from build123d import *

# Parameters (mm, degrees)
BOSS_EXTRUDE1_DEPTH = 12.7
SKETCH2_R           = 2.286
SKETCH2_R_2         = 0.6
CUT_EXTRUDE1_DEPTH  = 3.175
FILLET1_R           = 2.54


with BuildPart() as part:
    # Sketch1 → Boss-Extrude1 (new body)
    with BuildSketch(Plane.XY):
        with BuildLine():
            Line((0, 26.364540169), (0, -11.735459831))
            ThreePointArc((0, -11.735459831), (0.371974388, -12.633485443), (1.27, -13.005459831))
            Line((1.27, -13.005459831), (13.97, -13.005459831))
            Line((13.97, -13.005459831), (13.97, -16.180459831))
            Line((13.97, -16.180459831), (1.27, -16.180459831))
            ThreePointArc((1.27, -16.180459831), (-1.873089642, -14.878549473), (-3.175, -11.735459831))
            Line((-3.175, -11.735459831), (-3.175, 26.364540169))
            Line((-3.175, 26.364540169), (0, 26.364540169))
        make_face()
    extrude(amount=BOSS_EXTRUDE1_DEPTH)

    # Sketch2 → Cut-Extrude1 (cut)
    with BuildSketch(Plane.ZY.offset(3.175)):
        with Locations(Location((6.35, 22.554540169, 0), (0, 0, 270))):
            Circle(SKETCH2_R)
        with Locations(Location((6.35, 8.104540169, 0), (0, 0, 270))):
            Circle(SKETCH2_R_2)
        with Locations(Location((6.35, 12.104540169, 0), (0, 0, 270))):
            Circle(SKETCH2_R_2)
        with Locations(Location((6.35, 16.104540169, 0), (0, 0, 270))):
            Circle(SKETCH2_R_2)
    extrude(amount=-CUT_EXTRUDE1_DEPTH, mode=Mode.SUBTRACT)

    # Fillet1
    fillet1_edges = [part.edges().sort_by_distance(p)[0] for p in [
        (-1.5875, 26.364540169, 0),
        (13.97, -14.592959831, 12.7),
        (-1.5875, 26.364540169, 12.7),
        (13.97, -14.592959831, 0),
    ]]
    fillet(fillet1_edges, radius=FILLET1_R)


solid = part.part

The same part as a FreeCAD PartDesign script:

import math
import FreeCAD as App
import Part
import Sketcher
from FreeCAD import Vector
Q = App.Units.Quantity


def edges_at(feature, points):
    """Names of the edges that pass closest to the given points."""
    edges = feature.Shape.Edges
    near = lambda p: min(range(len(edges)), key=lambda i: edges[i].distToShape(Part.Vertex(*p))[0])
    return sorted({f"Edge{near(p) + 1}" for p in points})

doc = App.newDocument("Part")
body = doc.addObject("PartDesign::Body", "Body")

# Sketch on XY plane
sketch1 = body.newObject("Sketcher::SketchObject", "Sketch")
sketch1.AttachmentSupport = (doc.getObject("XY_Plane"), [""])
sketch1.MapMode = "FlatFace"
sketch1.addGeometry([
    Part.LineSegment(Vector(0, -11.7, 0), Vector(0, 26.4, 0)),  # 0
    Part.LineSegment(Vector(0, 26.4, 0), Vector(-3.2, 26.4, 0)),  # 1
    Part.LineSegment(Vector(-3.2, 26.4, 0), Vector(-3.2, -11.7, 0)),  # 2
    Part.ArcOfCircle(Part.Circle(Vector(1.3, -11.7, 0), Vector(0, 0, 1), 4.4), math.radians(-180), math.radians(-90)),  # 3
    Part.LineSegment(Vector(1.3, -16.2, 0), Vector(14, -16.2, 0)),  # 4
    Part.LineSegment(Vector(14, -16.2, 0), Vector(14, -13, 0)),  # 5
    Part.LineSegment(Vector(14, -13, 0), Vector(1.3, -13, 0)),  # 6
    Part.ArcOfCircle(Part.Circle(Vector(1.3, -11.7, 0), Vector(0, 0, 1), 1.3), math.radians(180), math.radians(270)),  # 7
], False)
sketch1.addConstraint([
    Sketcher.Constraint("Coincident", 0, 2, 1, 1),
    Sketcher.Constraint("Coincident", 1, 2, 2, 1),
    Sketcher.Constraint("Tangent", 2, 2, 3, 1),
    Sketcher.Constraint("Tangent", 3, 2, 4, 1),
    Sketcher.Constraint("Coincident", 4, 2, 5, 1),
    Sketcher.Constraint("Coincident", 5, 2, 6, 1),
    Sketcher.Constraint("Tangent", 6, 2, 7, 2),
    Sketcher.Constraint("Tangent", 7, 1, 0, 1),
    Sketcher.Constraint("Vertical", 0),
    Sketcher.Constraint("Horizontal", 1),
    Sketcher.Constraint("Vertical", 2),
    Sketcher.Constraint("Horizontal", 4),
    Sketcher.Constraint("Vertical", 5),
    Sketcher.Constraint("Horizontal", 6),
    Sketcher.Constraint("Coincident", 7, 3, 3, 3),
    Sketcher.Constraint("PointOnObject", 0, 2, -2),
    Sketcher.Constraint("Radius", 7, Q("0.05 in")),
    Sketcher.Constraint("DistanceX", 4, 1, 4, 2, Q("0.5 in")),
    Sketcher.Constraint("DistanceY", 0, 1, 0, 2, Q("1.5 in")),
    Sketcher.Constraint("Radius", 3, Q("0.175 in")),
    Sketcher.Constraint("DistanceY", 3, 3, -1, 1, 11.73546),
])
pad1 = body.newObject("PartDesign::Pad", "Pad")
pad1.Profile = sketch1
pad1.Length = Q("0.5 in")

# Sketch on YZ plane
sketch2 = body.newObject("Sketcher::SketchObject", "Sketch001")
sketch2.AttachmentSupport = (doc.getObject("YZ_Plane"), [""])
sketch2.MapMode = "FlatFace"
sketch2.AttachmentOffset = App.Placement(Vector(0, 0, -0.125 * 25.4), App.Rotation())
sketch2.addGeometry([
    Part.Circle(Vector(22.6, 6.3, 0), Vector(0, 0, 1), 2.3),
    Part.Circle(Vector(8.1, 6.3, 0), Vector(0, 0, 1), 0.6),
    Part.Circle(Vector(12.1, 6.3, 0), Vector(0, 0, 1), 0.6),
    Part.Circle(Vector(16.1, 6.3, 0), Vector(0, 0, 1), 0.6),
], False)
sketch2.addConstraint([
    Sketcher.Constraint("Equal", 1, 2),
    Sketcher.Constraint("Equal", 2, 3),
    Sketcher.Constraint("Horizontal", 0, 3, 1, 3),
    Sketcher.Constraint("Horizontal", 1, 3, 2, 3),
    Sketcher.Constraint("Horizontal", 2, 3, 3, 3),
    Sketcher.Constraint("Diameter", 0, Q("0.18 in")),
    Sketcher.Constraint("Diameter", 1, 1.2),
    Sketcher.Constraint("DistanceY", -1, 1, 0, 3, Q("0.25 in")),
    Sketcher.Constraint("DistanceX", 1, 3, 0, 3, 14.45),
    Sketcher.Constraint("DistanceX", 1, 3, 2, 3, 4.0),
    Sketcher.Constraint("DistanceX", 2, 3, 3, 3, 4.0),
    Sketcher.Constraint("DistanceX", -1, 1, 0, 3, 22.55454),
])
pocket1 = body.newObject("PartDesign::Pocket", "Pocket")
pocket1.Profile = sketch2
pocket1.Length = Q("0.125 in")
pocket1.Reversed = True
doc.recompute()

fillet = body.newObject("PartDesign::Fillet", "Fillet")
fillet.Base = (pocket1, edges_at(pocket1, [
    (-1.587, 26.365, 0),
    (13.97, -14.593, 12.7),
    (-1.587, 26.365, 12.7),
    (13.97, -14.593, 0),
]))
fillet.Radius = Q("0.1 in")

doc.recompute()
